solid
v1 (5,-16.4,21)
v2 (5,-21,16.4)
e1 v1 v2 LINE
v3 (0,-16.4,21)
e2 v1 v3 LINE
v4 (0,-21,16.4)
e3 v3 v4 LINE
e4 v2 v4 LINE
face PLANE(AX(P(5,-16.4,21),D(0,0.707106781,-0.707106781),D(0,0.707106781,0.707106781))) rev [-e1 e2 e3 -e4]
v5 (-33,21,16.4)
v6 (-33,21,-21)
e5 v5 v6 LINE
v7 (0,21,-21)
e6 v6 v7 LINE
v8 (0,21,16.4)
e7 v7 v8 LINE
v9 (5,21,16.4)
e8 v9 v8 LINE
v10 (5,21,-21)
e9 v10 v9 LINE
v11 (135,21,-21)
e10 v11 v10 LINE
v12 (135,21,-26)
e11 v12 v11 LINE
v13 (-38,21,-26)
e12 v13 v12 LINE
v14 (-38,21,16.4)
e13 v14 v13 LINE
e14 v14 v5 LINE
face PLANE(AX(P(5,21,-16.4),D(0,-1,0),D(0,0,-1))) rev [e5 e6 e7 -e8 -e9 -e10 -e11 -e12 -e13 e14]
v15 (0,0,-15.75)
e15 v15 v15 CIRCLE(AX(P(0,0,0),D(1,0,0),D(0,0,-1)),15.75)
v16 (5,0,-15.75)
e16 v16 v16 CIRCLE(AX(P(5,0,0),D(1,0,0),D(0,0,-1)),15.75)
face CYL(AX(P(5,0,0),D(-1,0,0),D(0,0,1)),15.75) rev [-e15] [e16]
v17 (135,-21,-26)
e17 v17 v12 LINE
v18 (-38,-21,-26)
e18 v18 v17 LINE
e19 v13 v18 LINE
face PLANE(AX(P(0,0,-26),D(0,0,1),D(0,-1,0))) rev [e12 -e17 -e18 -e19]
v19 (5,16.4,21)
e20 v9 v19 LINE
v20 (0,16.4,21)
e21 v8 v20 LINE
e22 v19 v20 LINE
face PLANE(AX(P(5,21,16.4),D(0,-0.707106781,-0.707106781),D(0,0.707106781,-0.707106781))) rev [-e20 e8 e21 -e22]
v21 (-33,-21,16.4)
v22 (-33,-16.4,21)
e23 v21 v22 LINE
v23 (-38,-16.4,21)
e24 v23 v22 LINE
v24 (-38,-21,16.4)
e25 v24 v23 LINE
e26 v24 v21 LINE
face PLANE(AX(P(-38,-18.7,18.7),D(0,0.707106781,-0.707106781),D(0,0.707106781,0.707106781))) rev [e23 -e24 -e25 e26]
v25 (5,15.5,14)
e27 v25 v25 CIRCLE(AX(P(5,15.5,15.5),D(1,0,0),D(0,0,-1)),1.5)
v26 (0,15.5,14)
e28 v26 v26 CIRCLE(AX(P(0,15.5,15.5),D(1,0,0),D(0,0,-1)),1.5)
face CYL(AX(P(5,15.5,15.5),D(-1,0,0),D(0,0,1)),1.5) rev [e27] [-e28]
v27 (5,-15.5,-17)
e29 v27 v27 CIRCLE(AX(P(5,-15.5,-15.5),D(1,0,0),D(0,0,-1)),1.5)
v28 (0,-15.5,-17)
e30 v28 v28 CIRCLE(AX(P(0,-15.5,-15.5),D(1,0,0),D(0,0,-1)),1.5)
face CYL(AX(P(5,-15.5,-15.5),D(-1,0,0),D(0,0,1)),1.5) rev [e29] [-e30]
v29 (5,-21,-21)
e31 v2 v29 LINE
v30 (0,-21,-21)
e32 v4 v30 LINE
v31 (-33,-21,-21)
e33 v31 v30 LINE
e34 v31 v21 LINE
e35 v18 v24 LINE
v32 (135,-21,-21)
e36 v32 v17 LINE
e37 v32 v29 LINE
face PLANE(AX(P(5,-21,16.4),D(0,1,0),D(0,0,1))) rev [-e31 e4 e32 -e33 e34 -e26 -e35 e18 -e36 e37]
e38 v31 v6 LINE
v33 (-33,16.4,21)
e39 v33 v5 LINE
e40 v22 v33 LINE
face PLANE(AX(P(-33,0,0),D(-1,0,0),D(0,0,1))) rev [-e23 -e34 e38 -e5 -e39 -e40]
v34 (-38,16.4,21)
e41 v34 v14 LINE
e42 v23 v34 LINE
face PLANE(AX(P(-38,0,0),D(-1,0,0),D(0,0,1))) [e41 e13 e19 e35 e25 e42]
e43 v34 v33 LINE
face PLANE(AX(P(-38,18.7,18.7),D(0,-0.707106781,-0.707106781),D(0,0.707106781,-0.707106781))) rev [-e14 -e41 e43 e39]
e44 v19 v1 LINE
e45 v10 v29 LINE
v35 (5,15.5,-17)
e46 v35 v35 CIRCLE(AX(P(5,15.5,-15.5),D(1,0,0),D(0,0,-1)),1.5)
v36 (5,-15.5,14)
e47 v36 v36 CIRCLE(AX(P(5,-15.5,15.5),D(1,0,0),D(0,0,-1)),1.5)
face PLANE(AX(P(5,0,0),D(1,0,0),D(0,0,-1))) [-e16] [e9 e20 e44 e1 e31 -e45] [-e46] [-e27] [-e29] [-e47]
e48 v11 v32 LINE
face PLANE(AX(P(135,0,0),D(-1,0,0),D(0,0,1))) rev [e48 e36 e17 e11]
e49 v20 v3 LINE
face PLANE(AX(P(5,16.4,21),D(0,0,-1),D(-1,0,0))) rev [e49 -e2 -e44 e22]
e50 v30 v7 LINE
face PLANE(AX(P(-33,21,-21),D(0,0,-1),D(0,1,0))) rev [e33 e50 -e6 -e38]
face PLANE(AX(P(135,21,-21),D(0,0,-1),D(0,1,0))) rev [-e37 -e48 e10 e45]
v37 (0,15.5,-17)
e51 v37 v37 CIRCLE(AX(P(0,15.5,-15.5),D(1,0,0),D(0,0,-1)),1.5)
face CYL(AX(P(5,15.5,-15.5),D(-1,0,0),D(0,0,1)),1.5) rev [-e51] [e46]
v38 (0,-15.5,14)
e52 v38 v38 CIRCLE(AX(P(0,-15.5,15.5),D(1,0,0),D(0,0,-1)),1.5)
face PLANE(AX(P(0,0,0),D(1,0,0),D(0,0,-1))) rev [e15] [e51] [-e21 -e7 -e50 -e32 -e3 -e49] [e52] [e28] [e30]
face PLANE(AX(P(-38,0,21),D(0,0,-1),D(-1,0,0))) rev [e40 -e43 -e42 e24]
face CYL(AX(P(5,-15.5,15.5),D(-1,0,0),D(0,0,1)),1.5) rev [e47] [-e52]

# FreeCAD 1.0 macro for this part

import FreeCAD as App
import Part
import Sketcher
from FreeCAD import Vector

doc = App.newDocument("Part")
params = doc.addObject("Spreadsheet::Sheet", "Params")
for row, (alias, value) in enumerate([
    ("sketch1_diameter", "3 mm"),
    ("sketch1_diameter2", "31.5 mm"),
    ("sketch1_width", "32.8 mm"),
    ("pad1_length", "5 mm"),
    ("sketch2_width", "42 mm"),
    ("sketch2_width2", "32.8 mm"),
    ("sketch2_height", "9.6 mm"),
    ("pad2_length", "5 mm"),
    ("sketch3_width", "42 mm"),
    ("sketch3_height", "5 mm"),
    ("pad3_length", "33 mm"),
    ("sketch4_width", "42 mm"),
    ("sketch4_width2", "32.8 mm"),
    ("sketch4_height", "42.4 mm"),
    ("pad4_length", "5 mm"),
    ("sketch5_width", "42 mm"),
    ("sketch5_height", "5 mm"),
    ("pad5_length", "130 mm"),
], start=1):
    params.set(f"A{row}", alias)
    params.set(f"B{row}", "=" + value)
    params.setAlias(f"B{row}", alias)

body = doc.addObject("PartDesign::Body", "Body")

# Sketch on YZ plane
sketch1 = body.newObject("Sketcher::SketchObject", "Sketch")
sketch1.AttachmentSupport = (doc.getObject("YZ_Plane"), [""])
sketch1.MapMode = "FlatFace"
sketch1.addGeometry(Part.LineSegment(Vector(16.4, 21, 0), Vector(-16.4, 21, 0)), False)
sketch1.addGeometry(Part.LineSegment(Vector(-16.4, 21, 0), Vector(-21, 16.4, 0)), False)
sketch1.addGeometry(Part.LineSegment(Vector(-21, 16.4, 0), Vector(-21, -16.4, 0)), False)
sketch1.addGeometry(Part.LineSegment(Vector(-21, -16.4, 0), Vector(-16.4, -21, 0)), False)
sketch1.addGeometry(Part.LineSegment(Vector(-16.4, -21, 0), Vector(16.4, -21, 0)), False)
sketch1.addGeometry(Part.LineSegment(Vector(16.4, -21, 0), Vector(21, -16.4, 0)), False)
sketch1.addGeometry(Part.LineSegment(Vector(21, -16.4, 0), Vector(21, 16.4, 0)), False)
sketch1.addGeometry(Part.LineSegment(Vector(21, 16.4, 0), Vector(16.4, 21, 0)), False)
sketch1.addGeometry(Part.Circle(Vector(-15.5, 15.5, 0), Vector(0, 0, 1), 1.5), False)
sketch1.addGeometry(Part.Circle(Vector(-15.5, -15.5, 0), Vector(0, 0, 1), 1.5), False)
sketch1.addGeometry(Part.Circle(Vector(15.5, 15.5, 0), Vector(0, 0, 1), 1.5), False)
sketch1.addGeometry(Part.Circle(Vector(0, 0, 0), Vector(0, 0, 1), 15.8), False)
sketch1.addGeometry(Part.Circle(Vector(15.5, -15.5, 0), Vector(0, 0, 1), 1.5), False)
sketch1.addConstraint(Sketcher.Constraint("Coincident", 0, 2, 1, 1))
sketch1.addConstraint(Sketcher.Constraint("Coincident", 1, 2, 2, 1))
sketch1.addConstraint(Sketcher.Constraint("Coincident", 2, 2, 3, 1))
sketch1.addConstraint(Sketcher.Constraint("Coincident", 3, 2, 4, 1))
sketch1.addConstraint(Sketcher.Constraint("Coincident", 4, 2, 5, 1))
sketch1.addConstraint(Sketcher.Constraint("Coincident", 5, 2, 6, 1))
sketch1.addConstraint(Sketcher.Constraint("Coincident", 6, 2, 7, 1))
sketch1.addConstraint(Sketcher.Constraint("Coincident", 7, 2, 0, 1))
sketch1.addConstraint(Sketcher.Constraint("Horizontal", 0))
sketch1.addConstraint(Sketcher.Constraint("Vertical", 2))
sketch1.addConstraint(Sketcher.Constraint("Horizontal", 4))
sketch1.addConstraint(Sketcher.Constraint("Vertical", 6))
sketch1.addConstraint(Sketcher.Constraint("Coincident", 11, 3, -1, 1))
sketch1.addConstraint(Sketcher.Constraint("Equal", 8, 9))
sketch1.addConstraint(Sketcher.Constraint("Equal", 9, 10))
sketch1.addConstraint(Sketcher.Constraint("Equal", 10, 12))
sketch1.addConstraint(Sketcher.Constraint("Symmetric", 9, 3, 10, 3, -1, 1))
sketch1.addConstraint(Sketcher.Constraint("Symmetric", 8, 3, 12, 3, -1, 1))
sketch1.addConstraint(Sketcher.Constraint("Symmetric", 0, 2, 4, 2, -1, 1))
sketch1.addConstraint(Sketcher.Constraint("Symmetric", 1, 2, 5, 2, -1, 1))
sketch1.addConstraint(Sketcher.Constraint("Symmetric", 8, 3, 10, 3, -2))
sketch1.addConstraint(Sketcher.Constraint("Perpendicular", 1, 3))
sketch1.addConstraint(Sketcher.Constraint("Perpendicular", 5, 7))
sketch1.addConstraint(Sketcher.Constraint("Horizontal", 2, 2, 5, 2))
sketch1.addConstraint(Sketcher.Constraint("Horizontal", 1, 2, 6, 2))
sketch1.addConstraint(Sketcher.Constraint("Vertical", 0, 2, 3, 2))
sketch1.addConstraint(Sketcher.Constraint("Equal", 4, 2))
sketch1.addConstraint(Sketcher.Constraint("Diameter", 8, 3.0))
sketch1.addConstraint(Sketcher.Constraint("Diameter", 11, 31.5))
sketch1.addConstraint(Sketcher.Constraint("DistanceX", 0, 2, 0, 1, 32.8))
sketch1.addConstraint(Sketcher.Constraint("DistanceY", -1, 1, 0, 2, 21.0))
sketch1.addConstraint(Sketcher.Constraint("DistanceY", 9, 3, 8, 3, 31.0))
sketch1.addConstraint(Sketcher.Constraint("DistanceX", 8, 3, 10, 3, 31.0))
sketch1.setExpression("Constraints[27]", "Params.sketch1_diameter")
sketch1.setExpression("Constraints[28]", "Params.sketch1_diameter2")
sketch1.setExpression("Constraints[29]", "Params.sketch1_width")
pad1 = body.newObject("PartDesign::Pad", "Pad")
pad1.Profile = sketch1
pad1.setExpression("Length", "Params.pad1_length")

# Sketch on YZ plane
sketch2 = body.newObject("Sketcher::SketchObject", "Sketch001")
sketch2.AttachmentSupport = (doc.getObject("YZ_Plane"), [""])
sketch2.MapMode = "FlatFace"
sketch2.AttachmentOffset = App.Placement(Vector(0, 0, 5), App.Rotation())
sketch2.addGeometry(Part.LineSegment(Vector(-21, -26, 0), Vector(21, -26, 0)), False)
sketch2.addGeometry(Part.LineSegment(Vector(21, -26, 0), Vector(21, -16, 0)), False)
sketch2.addGeometry(Part.LineSegment(Vector(21, -16, 0), Vector(16, -21, 0)), False)
sketch2.addGeometry(Part.LineSegment(Vector(16, -21, 0), Vector(-16, -21, 0)), False)
sketch2.addGeometry(Part.LineSegment(Vector(-16, -21, 0), Vector(-21, -16, 0)), False)
sketch2.addGeometry(Part.LineSegment(Vector(-21, -16, 0), Vector(-21, -26, 0)), False)
sketch2.addConstraint(Sketcher.Constraint("Coincident", 0, 2, 1, 1))
sketch2.addConstraint(Sketcher.Constraint("Coincident", 1, 2, 2, 1))
sketch2.addConstraint(Sketcher.Constraint("Coincident", 2, 2, 3, 1))
sketch2.addConstraint(Sketcher.Constraint("Coincident", 3, 2, 4, 1))
sketch2.addConstraint(Sketcher.Constraint("Coincident", 4, 2, 5, 1))
sketch2.addConstraint(Sketcher.Constraint("Coincident", 5, 2, 0, 1))
sketch2.addConstraint(Sketcher.Constraint("Horizontal", 0))
sketch2.addConstraint(Sketcher.Constraint("Vertical", 1))
sketch2.addConstraint(Sketcher.Constraint("Horizontal", 3))
sketch2.addConstraint(Sketcher.Constraint("Vertical", 5))
sketch2.addConstraint(Sketcher.Constraint("Symmetric", 1, 2, 4, 2, -2))
sketch2.addConstraint(Sketcher.Constraint("Perpendicular", 2, 4))
sketch2.addConstraint(Sketcher.Constraint("Equal", 2, 4))
sketch2.addConstraint(Sketcher.Constraint("DistanceX", 0, 1, 0, 2, 42.0))
sketch2.addConstraint(Sketcher.Constraint("DistanceX", 3, 2, 3, 1, 32.8))
sketch2.addConstraint(Sketcher.Constraint("DistanceY", 1, 1, 1, 2, 9.6))
sketch2.addConstraint(Sketcher.Constraint("DistanceY", 0, 2, -1, 1, 26.0))
sketch2.setExpression("Constraints[13]", "Params.sketch2_width")
sketch2.setExpression("Constraints[14]", "Params.sketch2_width2")
sketch2.setExpression("Constraints[15]", "Params.sketch2_height")
pad2 = body.newObject("PartDesign::Pad", "Pad001")
pad2.Profile = sketch2
pad2.setExpression("Length", "Params.pad2_length")
pad2.Reversed = True

# Sketch on YZ plane
sketch3 = body.newObject("Sketcher::SketchObject", "Sketch002")
sketch3.AttachmentSupport = (doc.getObject("YZ_Plane"), [""])
sketch3.MapMode = "FlatFace"
sketch3.addGeometry(Part.LineSegment(Vector(21, -26, 0), Vector(-21, -26, 0)), False)
sketch3.addGeometry(Part.LineSegment(Vector(-21, -26, 0), Vector(-21, -21, 0)), False)
sketch3.addGeometry(Part.LineSegment(Vector(-21, -21, 0), Vector(21, -21, 0)), False)
sketch3.addGeometry(Part.LineSegment(Vector(21, -21, 0), Vector(21, -26, 0)), False)
sketch3.addConstraint(Sketcher.Constraint("Coincident", 0, 2, 1, 1))
sketch3.addConstraint(Sketcher.Constraint("Coincident", 1, 2, 2, 1))
sketch3.addConstraint(Sketcher.Constraint("Coincident", 2, 2, 3, 1))
sketch3.addConstraint(Sketcher.Constraint("Coincident", 3, 2, 0, 1))
sketch3.addConstraint(Sketcher.Constraint("Horizontal", 0))
sketch3.addConstraint(Sketcher.Constraint("Vertical", 1))
sketch3.addConstraint(Sketcher.Constraint("Horizontal", 2))
sketch3.addConstraint(Sketcher.Constraint("Vertical", 3))
sketch3.addConstraint(Sketcher.Constraint("DistanceX", 0, 2, 0, 1, 42.0))
sketch3.addConstraint(Sketcher.Constraint("DistanceY", 1, 1, 1, 2, 5.0))
sketch3.addConstraint(Sketcher.Constraint("DistanceX", 0, 2, -1, 1, 21.0))
sketch3.addConstraint(Sketcher.Constraint("DistanceY", 0, 2, -1, 1, 26.0))
sketch3.setExpression("Constraints[8]", "Params.sketch3_width")
sketch3.setExpression("Constraints[9]", "Params.sketch3_height")
pad3 = body.newObject("PartDesign::Pad", "Pad002")
pad3.Profile = sketch3
pad3.setExpression("Length", "Params.pad3_length")
pad3.Reversed = True

# Sketch on YZ plane
sketch4 = body.newObject("Sketcher::SketchObject", "Sketch003")
sketch4.AttachmentSupport = (doc.getObject("YZ_Plane"), [""])
sketch4.MapMode = "FlatFace"
sketch4.AttachmentOffset = App.Placement(Vector(0, 0, -33), App.Rotation())
sketch4.addGeometry(Part.LineSegment(Vector(21, -26, 0), Vector(-21, -26, 0)), False)
sketch4.addGeometry(Part.LineSegment(Vector(-21, -26, 0), Vector(-21, 16, 0)), False)
sketch4.addGeometry(Part.LineSegment(Vector(-21, 16, 0), Vector(-16, 21, 0)), False)
sketch4.addGeometry(Part.LineSegment(Vector(-16, 21, 0), Vector(16, 21, 0)), False)
sketch4.addGeometry(Part.LineSegment(Vector(16, 21, 0), Vector(21, 16, 0)), False)
sketch4.addGeometry(Part.LineSegment(Vector(21, 16, 0), Vector(21, -26, 0)), False)
sketch4.addConstraint(Sketcher.Constraint("Coincident", 0, 2, 1, 1))
sketch4.addConstraint(Sketcher.Constraint("Coincident", 1, 2, 2, 1))
sketch4.addConstraint(Sketcher.Constraint("Coincident", 2, 2, 3, 1))
sketch4.addConstraint(Sketcher.Constraint("Coincident", 3, 2, 4, 1))
sketch4.addConstraint(Sketcher.Constraint("Coincident", 4, 2, 5, 1))
sketch4.addConstraint(Sketcher.Constraint("Coincident", 5, 2, 0, 1))
sketch4.addConstraint(Sketcher.Constraint("Horizontal", 0))
sketch4.addConstraint(Sketcher.Constraint("Vertical", 1))
sketch4.addConstraint(Sketcher.Constraint("Horizontal", 3))
sketch4.addConstraint(Sketcher.Constraint("Vertical", 5))
sketch4.addConstraint(Sketcher.Constraint("Symmetric", 1, 2, 4, 2, -2))
sketch4.addConstraint(Sketcher.Constraint("Perpendicular", 2, 4))
sketch4.addConstraint(Sketcher.Constraint("Equal", 2, 4))
sketch4.addConstraint(Sketcher.Constraint("DistanceX", 0, 2, 0, 1, 42.0))
sketch4.addConstraint(Sketcher.Constraint("DistanceX", 3, 1, 3, 2, 32.8))
sketch4.addConstraint(Sketcher.Constraint("DistanceY", 1, 1, 1, 2, 42.4))
sketch4.addConstraint(Sketcher.Constraint("DistanceY", 0, 2, -1, 1, 26.0))
sketch4.setExpression("Constraints[13]", "Params.sketch4_width")
sketch4.setExpression("Constraints[14]", "Params.sketch4_width2")
sketch4.setExpression("Constraints[15]", "Params.sketch4_height")
pad4 = body.newObject("PartDesign::Pad", "Pad003")
pad4.Profile = sketch4
pad4.setExpression("Length", "Params.pad4_length")
pad4.Reversed = True

# Sketch on YZ plane
sketch5 = body.newObject("Sketcher::SketchObject", "Sketch004")
sketch5.AttachmentSupport = (doc.getObject("YZ_Plane"), [""])
sketch5.MapMode = "FlatFace"
sketch5.AttachmentOffset = App.Placement(Vector(0, 0, 5), App.Rotation())
sketch5.addGeometry(Part.LineSegment(Vector(21, -21, 0), Vector(-21, -21, 0)), False)
sketch5.addGeometry(Part.LineSegment(Vector(-21, -21, 0), Vector(-21, -26, 0)), False)
sketch5.addGeometry(Part.LineSegment(Vector(-21, -26, 0), Vector(21, -26, 0)), False)
sketch5.addGeometry(Part.LineSegment(Vector(21, -26, 0), Vector(21, -21, 0)), False)
sketch5.addConstraint(Sketcher.Constraint("Coincident", 0, 2, 1, 1))
sketch5.addConstraint(Sketcher.Constraint("Coincident", 1, 2, 2, 1))
sketch5.addConstraint(Sketcher.Constraint("Coincident", 2, 2, 3, 1))
sketch5.addConstraint(Sketcher.Constraint("Coincident", 3, 2, 0, 1))
sketch5.addConstraint(Sketcher.Constraint("Horizontal", 0))
sketch5.addConstraint(Sketcher.Constraint("Vertical", 1))
sketch5.addConstraint(Sketcher.Constraint("Horizontal", 2))
sketch5.addConstraint(Sketcher.Constraint("Vertical", 3))
sketch5.addConstraint(Sketcher.Constraint("DistanceX", 0, 2, 0, 1, 42.0))
sketch5.addConstraint(Sketcher.Constraint("DistanceY", 1, 2, 1, 1, 5.0))
sketch5.addConstraint(Sketcher.Constraint("DistanceX", 0, 2, -1, 1, 21.0))
sketch5.addConstraint(Sketcher.Constraint("DistanceY", 0, 2, -1, 1, 21.0))
sketch5.setExpression("Constraints[8]", "Params.sketch5_width")
sketch5.setExpression("Constraints[9]", "Params.sketch5_height")
pad5 = body.newObject("PartDesign::Pad", "Pad004")
pad5.Profile = sketch5
pad5.setExpression("Length", "Params.pad5_length")

doc.recompute()
